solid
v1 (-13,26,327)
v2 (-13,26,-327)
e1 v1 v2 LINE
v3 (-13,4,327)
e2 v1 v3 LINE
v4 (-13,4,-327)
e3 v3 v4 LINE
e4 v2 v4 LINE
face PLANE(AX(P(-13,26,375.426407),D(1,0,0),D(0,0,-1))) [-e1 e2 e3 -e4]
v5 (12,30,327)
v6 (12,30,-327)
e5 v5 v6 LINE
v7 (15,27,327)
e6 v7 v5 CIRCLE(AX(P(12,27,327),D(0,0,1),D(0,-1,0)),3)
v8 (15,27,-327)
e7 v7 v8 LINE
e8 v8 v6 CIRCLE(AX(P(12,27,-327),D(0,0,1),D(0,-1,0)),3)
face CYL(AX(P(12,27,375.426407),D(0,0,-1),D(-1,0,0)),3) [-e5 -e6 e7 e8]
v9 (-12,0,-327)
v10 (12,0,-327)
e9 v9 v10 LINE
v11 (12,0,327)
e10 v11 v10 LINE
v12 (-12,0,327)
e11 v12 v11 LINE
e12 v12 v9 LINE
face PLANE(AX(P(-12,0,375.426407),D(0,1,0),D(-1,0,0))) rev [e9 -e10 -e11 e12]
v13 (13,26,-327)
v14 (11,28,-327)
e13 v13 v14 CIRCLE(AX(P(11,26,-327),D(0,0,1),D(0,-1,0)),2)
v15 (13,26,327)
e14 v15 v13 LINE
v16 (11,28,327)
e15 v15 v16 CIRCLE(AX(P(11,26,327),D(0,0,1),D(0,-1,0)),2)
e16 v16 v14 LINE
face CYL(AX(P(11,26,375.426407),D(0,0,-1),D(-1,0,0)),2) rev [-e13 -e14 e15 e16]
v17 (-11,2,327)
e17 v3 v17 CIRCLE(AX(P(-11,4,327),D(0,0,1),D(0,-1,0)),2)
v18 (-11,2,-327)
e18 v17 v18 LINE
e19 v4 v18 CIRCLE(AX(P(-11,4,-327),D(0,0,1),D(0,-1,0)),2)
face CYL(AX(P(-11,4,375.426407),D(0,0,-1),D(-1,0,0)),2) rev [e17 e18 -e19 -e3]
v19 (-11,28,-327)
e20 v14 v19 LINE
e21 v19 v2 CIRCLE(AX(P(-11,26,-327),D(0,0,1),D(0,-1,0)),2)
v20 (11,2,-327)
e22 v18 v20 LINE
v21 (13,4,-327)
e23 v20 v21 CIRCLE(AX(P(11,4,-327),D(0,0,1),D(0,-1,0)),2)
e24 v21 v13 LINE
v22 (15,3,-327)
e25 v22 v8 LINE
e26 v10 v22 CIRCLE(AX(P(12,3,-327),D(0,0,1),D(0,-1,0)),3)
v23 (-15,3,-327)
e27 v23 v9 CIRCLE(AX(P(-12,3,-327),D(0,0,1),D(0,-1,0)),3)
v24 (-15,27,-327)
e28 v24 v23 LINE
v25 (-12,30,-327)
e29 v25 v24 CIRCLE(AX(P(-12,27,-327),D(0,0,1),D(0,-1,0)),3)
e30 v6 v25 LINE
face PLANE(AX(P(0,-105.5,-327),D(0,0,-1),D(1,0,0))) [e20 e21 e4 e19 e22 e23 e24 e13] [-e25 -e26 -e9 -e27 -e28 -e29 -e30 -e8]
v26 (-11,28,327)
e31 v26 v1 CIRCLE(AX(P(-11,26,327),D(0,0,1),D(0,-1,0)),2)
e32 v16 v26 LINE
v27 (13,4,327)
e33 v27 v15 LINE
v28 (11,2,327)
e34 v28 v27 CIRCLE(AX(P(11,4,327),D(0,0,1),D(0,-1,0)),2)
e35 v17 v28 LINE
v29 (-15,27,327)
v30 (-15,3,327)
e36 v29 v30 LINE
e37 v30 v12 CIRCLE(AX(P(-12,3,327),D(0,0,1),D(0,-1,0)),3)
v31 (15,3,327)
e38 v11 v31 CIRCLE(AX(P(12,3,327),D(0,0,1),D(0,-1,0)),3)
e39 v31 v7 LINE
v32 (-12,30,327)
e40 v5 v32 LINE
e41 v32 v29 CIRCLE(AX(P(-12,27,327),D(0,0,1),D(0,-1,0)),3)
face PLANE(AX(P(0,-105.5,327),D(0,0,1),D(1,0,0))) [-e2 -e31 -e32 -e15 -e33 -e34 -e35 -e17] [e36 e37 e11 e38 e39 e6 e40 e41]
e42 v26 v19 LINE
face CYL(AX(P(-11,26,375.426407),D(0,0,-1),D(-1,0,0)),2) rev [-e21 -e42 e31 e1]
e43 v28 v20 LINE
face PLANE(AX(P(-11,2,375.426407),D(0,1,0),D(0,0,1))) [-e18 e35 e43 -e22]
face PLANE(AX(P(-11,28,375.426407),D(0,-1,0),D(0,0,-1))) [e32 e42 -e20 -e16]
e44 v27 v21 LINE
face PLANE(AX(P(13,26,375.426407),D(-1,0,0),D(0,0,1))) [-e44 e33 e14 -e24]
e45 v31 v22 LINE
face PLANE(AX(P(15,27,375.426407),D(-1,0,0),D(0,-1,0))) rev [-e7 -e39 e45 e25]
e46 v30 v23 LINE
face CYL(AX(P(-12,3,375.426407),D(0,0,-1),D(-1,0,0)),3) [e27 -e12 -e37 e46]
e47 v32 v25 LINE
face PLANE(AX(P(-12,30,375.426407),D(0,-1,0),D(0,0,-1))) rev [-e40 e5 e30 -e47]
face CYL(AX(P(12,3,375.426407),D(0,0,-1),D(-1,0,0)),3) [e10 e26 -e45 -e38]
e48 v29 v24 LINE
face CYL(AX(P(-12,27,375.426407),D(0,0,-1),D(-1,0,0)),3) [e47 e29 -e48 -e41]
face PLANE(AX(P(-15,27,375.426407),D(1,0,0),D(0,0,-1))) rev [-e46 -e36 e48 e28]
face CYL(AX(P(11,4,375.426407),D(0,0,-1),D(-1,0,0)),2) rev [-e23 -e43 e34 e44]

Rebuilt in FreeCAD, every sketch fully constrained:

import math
import FreeCAD as App
import Part
import Sketcher
from FreeCAD import Vector

doc = App.newDocument("Part")
body = doc.addObject("PartDesign::Body", "Body")

sketch1 = doc.addObject("Sketcher::SketchObject", "Sketch")
body.addObject(sketch1)
sketch1.AttachmentSupport = (doc.XY_Plane, [""])
sketch1.MapMode = "FlatFace"
sketch1.addGeometry([
    Part.LineSegment(Vector(12, 30, 0), Vector(-12, 30, 0)),
    Part.ArcOfCircle(Part.Circle(Vector(-12, 27, 0), Vector(0, 0, 1), 3), math.radians(90), math.radians(180)),
    Part.LineSegment(Vector(-15, 27, 0), Vector(-15, 3, 0)),
    Part.ArcOfCircle(Part.Circle(Vector(-12, 3, 0), Vector(0, 0, 1), 3), math.radians(180), math.radians(270)),
    Part.LineSegment(Vector(-12, 0, 0), Vector(12, 0, 0)),
    Part.ArcOfCircle(Part.Circle(Vector(12, 3, 0), Vector(0, 0, 1), 3), math.radians(-90), math.radians(0)),
    Part.LineSegment(Vector(15, 3, 0), Vector(15, 27, 0)),
    Part.ArcOfCircle(Part.Circle(Vector(12, 27, 0), Vector(0, 0, 1), 3), math.radians(0), math.radians(90)),
    Part.LineSegment(Vector(-11, 28, 0), Vector(11, 28, 0)),
    Part.ArcOfCircle(Part.Circle(Vector(11, 26, 0), Vector(0, 0, 1), 2), math.radians(0), math.radians(90)),
    Part.LineSegment(Vector(13, 26, 0), Vector(13, 4, 0)),
    Part.ArcOfCircle(Part.Circle(Vector(11, 4, 0), Vector(0, 0, 1), 2), math.radians(-90), math.radians(0)),
    Part.LineSegment(Vector(11, 2, 0), Vector(-11, 2, 0)),
    Part.ArcOfCircle(Part.Circle(Vector(-11, 4, 0), Vector(0, 0, 1), 2), math.radians(-180), math.radians(-90)),
    Part.LineSegment(Vector(-13, 4, 0), Vector(-13, 26, 0)),
    Part.ArcOfCircle(Part.Circle(Vector(-11, 26, 0), Vector(0, 0, 1), 2), math.radians(90), math.radians(180)),
], False)
sketch1.addConstraint([
    Sketcher.Constraint("Tangent", 0, 2, 1, 1),
    Sketcher.Constraint("Tangent", 1, 2, 2, 1),
    Sketcher.Constraint("Tangent", 2, 2, 3, 1),
    Sketcher.Constraint("Tangent", 3, 2, 4, 1),
    Sketcher.Constraint("Tangent", 4, 2, 5, 1),
    Sketcher.Constraint("Tangent", 5, 2, 6, 1),
    Sketcher.Constraint("Tangent", 6, 2, 7, 1),
    Sketcher.Constraint("Tangent", 7, 2, 0, 1),
    Sketcher.Constraint("Tangent", 8, 2, 9, 2),
    Sketcher.Constraint("Tangent", 9, 1, 10, 1),
    Sketcher.Constraint("Tangent", 10, 2, 11, 2),
    Sketcher.Constraint("Tangent", 11, 1, 12, 1),
    Sketcher.Constraint("Tangent", 12, 2, 13, 2),
    Sketcher.Constraint("Tangent", 13, 1, 14, 1),
    Sketcher.Constraint("Tangent", 14, 2, 15, 2),
    Sketcher.Constraint("Tangent", 15, 1, 8, 1),
    Sketcher.Constraint("Horizontal", 0),
    Sketcher.Constraint("Vertical", 2),
    Sketcher.Constraint("Horizontal", 4),
    Sketcher.Constraint("Vertical", 6),
    Sketcher.Constraint("Horizontal", 8),
    Sketcher.Constraint("Vertical", 10),
    Sketcher.Constraint("Horizontal", 12),
    Sketcher.Constraint("Vertical", 14),
    Sketcher.Constraint("Equal", 1, 3),
    Sketcher.Constraint("Equal", 3, 5),
    Sketcher.Constraint("Equal", 5, 7),
    Sketcher.Constraint("Equal", 9, 11),
    Sketcher.Constraint("Equal", 11, 13),
    Sketcher.Constraint("Equal", 13, 15),
    Sketcher.Constraint("Symmetric", 3, 2, 4, 2, -1, 1),
    Sketcher.Constraint("Equal", 4, 2),
    Sketcher.Constraint("Equal", 12, 10),
    Sketcher.Constraint("Radius", 1, 3.0),
    Sketcher.Constraint("Radius", 9, 2.0),
    Sketcher.Constraint("DistanceX", 0, 2, 0, 1, 24.0),
    Sketcher.Constraint("DistanceX", 8, 1, 8, 2, 22.0),
    Sketcher.Constraint("DistanceX", -1, 1, 9, 3, 11.0),
    Sketcher.Constraint("DistanceY", -1, 1, 9, 3, 26.0),
])
pad1 = doc.addObject("PartDesign::Pad", "Pad")
body.addObject(pad1)
pad1.Profile = sketch1
pad1.Length = 327
body2 = doc.addObject("PartDesign::Body", "Body001")
doc.recompute()

body2.BaseFeature = body
doc.recompute()

mirroring = doc.addObject("Part::Mirroring", "Mirroring")
mirroring.Source = body
mirroring.Base = Vector(-12, 3, 0)
mirroring.Normal = Vector(0, 0, 1)
body3 = doc.addObject("PartDesign::Body", "Body002")
body3.BaseFeature = mirroring
boolean = doc.addObject("PartDesign::Boolean", "Boolean")
body2.addObject(boolean)
boolean.Type = "Fuse"
boolean.addObjects([body3])
doc.recompute()
mirroring.Visibility = False

doc.recompute()
